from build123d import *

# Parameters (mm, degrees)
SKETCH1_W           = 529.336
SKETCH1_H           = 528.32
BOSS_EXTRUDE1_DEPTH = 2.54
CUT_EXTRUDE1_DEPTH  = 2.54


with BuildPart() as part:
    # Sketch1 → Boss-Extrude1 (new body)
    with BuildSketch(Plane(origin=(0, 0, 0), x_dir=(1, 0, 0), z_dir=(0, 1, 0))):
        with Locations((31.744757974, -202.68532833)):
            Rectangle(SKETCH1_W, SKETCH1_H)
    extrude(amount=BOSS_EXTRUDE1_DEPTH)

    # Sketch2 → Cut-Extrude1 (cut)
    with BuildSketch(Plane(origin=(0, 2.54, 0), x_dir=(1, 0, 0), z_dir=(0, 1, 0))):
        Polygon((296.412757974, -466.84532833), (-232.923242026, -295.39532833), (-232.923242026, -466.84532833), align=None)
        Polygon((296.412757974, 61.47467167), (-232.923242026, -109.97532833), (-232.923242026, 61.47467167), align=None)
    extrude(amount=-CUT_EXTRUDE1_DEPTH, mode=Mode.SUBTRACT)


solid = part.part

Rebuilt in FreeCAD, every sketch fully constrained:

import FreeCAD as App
import Part
import Sketcher
Q = App.Units.Quantity

doc = App.newDocument("Part")
body = doc.addObject("PartDesign::Body", "Body")

# Sketch on XZ plane
sketch1 = body.newObject("Sketcher::SketchObject", "Sketch")
sketch1.AttachmentSupport = (doc.getObject("XZ_Plane"), [""])
sketch1.MapMode = "FlatFace"
sketch1.addGeometry(Part.LineSegment(App.Vector(-232.923242, -61.474672, 0), App.Vector(-232.923242, 466.845328, 0)), False)
sketch1.addGeometry(Part.LineSegment(App.Vector(-232.923242, 466.845328, 0), App.Vector(296.412758, 466.845328, 0)), False)
sketch1.addGeometry(Part.LineSegment(App.Vector(296.412758, 466.845328, 0), App.Vector(296.412758, -61.474672, 0)), False)
sketch1.addGeometry(Part.LineSegment(App.Vector(296.412758, -61.474672, 0), App.Vector(-232.923242, -61.474672, 0)), False)
sketch1.addConstraint(Sketcher.Constraint("Coincident", 0, 2, 1, 1))
sketch1.addConstraint(Sketcher.Constraint("Coincident", 1, 2, 2, 1))
sketch1.addConstraint(Sketcher.Constraint("Coincident", 2, 2, 3, 1))
sketch1.addConstraint(Sketcher.Constraint("Coincident", 3, 2, 0, 1))
sketch1.addConstraint(Sketcher.Constraint("Vertical", 0))
sketch1.addConstraint(Sketcher.Constraint("Horizontal", 1))
sketch1.addConstraint(Sketcher.Constraint("Vertical", 2))
sketch1.addConstraint(Sketcher.Constraint("Horizontal", 3))
sketch1.addConstraint(Sketcher.Constraint("DistanceY", 0, 1, 0, 2, Q("20.8 in")))
sketch1.addConstraint(Sketcher.Constraint("DistanceX", 1, 1, 1, 2, Q("20.84 in")))
sketch1.addConstraint(Sketcher.Constraint("DistanceY", -1, 1, 0, 2, Q("466.845328 mm")))
sketch1.addConstraint(Sketcher.Constraint("DistanceX", 0, 2, -1, 1, Q("232.923242 mm")))
pad1 = body.newObject("PartDesign::Pad", "Pad")
pad1.Profile = sketch1
pad1.Length = Q("0.1 in")
pad1.Reversed = True

# Sketch on XZ plane
sketch2 = body.newObject("Sketcher::SketchObject", "Sketch001")
sketch2.AttachmentSupport = (doc.getObject("XZ_Plane"), [""])
sketch2.MapMode = "FlatFace"
sketch2.AttachmentOffset = App.Placement(App.Vector(0, 0, -0.1 * 25.4), App.Rotation())
sketch2.addGeometry(Part.LineSegment(App.Vector(296.412758, 466.845328, 0), App.Vector(-232.923242, 295.395328, 0)), False)
sketch2.addGeometry(Part.LineSegment(App.Vector(-232.923242, 295.395328, 0), App.Vector(-232.923242, 466.845328, 0)), False)
sketch2.addGeometry(Part.LineSegment(App.Vector(-232.923242, 466.845328, 0), App.Vector(296.412758, 466.845328, 0)), False)
sketch2.addGeometry(Part.LineSegment(App.Vector(-232.923242, 109.975328, 0), App.Vector(296.412758, -61.474672, 0)), False)
sketch2.addGeometry(Part.LineSegment(App.Vector(296.412758, -61.474672, 0), App.Vector(-232.923242, -61.474672, 0)), False)
sketch2.addGeometry(Part.LineSegment(App.Vector(-232.923242, -61.474672, 0), App.Vector(-232.923242, 109.975328, 0)), False)
sketch2.addConstraint(Sketcher.Constraint("Coincident", 0, 2, 1, 1))
sketch2.addConstraint(Sketcher.Constraint("Coincident", 1, 2, 2, 1))
sketch2.addConstraint(Sketcher.Constraint("Coincident", 2, 2, 0, 1))
sketch2.addConstraint(Sketcher.Constraint("Coincident", 3, 2, 4, 1))
sketch2.addConstraint(Sketcher.Constraint("Coincident", 4, 2, 5, 1))
sketch2.addConstraint(Sketcher.Constraint("Coincident", 5, 2, 3, 1))
sketch2.addConstraint(Sketcher.Constraint("Vertical", 1))
sketch2.addConstraint(Sketcher.Constraint("Horizontal", 2))
sketch2.addConstraint(Sketcher.Constraint("Horizontal", 4))
sketch2.addConstraint(Sketcher.Constraint("Vertical", 5))
sketch2.addConstraint(Sketcher.Constraint("Vertical", 2, 2, 3, 2))
sketch2.addConstraint(Sketcher.Constraint("Vertical", 1, 2, 4, 2))
sketch2.addConstraint(Sketcher.Constraint("Equal", 1, 5))
sketch2.addConstraint(Sketcher.Constraint("DistanceX", 2, 1, 2, 2, Q("20.84 in")))
sketch2.addConstraint(Sketcher.Constraint("DistanceY", 1, 1, 1, 2, Q("6.75 in")))
sketch2.addConstraint(Sketcher.Constraint("DistanceY", 3, 2, 2, 2, Q("20.8 in")))
sketch2.addConstraint(Sketcher.Constraint("DistanceY", -1, 1, 0, 2, Q("295.395328 mm")))
sketch2.addConstraint(Sketcher.Constraint("DistanceX", 0, 2, -1, 1, Q("232.923242 mm")))
pocket1 = body.newObject("PartDesign::Pocket", "Pocket")
pocket1.Profile = sketch2
pocket1.Length = Q("0.1 in")
pocket1.Reversed = True

doc.recompute()
